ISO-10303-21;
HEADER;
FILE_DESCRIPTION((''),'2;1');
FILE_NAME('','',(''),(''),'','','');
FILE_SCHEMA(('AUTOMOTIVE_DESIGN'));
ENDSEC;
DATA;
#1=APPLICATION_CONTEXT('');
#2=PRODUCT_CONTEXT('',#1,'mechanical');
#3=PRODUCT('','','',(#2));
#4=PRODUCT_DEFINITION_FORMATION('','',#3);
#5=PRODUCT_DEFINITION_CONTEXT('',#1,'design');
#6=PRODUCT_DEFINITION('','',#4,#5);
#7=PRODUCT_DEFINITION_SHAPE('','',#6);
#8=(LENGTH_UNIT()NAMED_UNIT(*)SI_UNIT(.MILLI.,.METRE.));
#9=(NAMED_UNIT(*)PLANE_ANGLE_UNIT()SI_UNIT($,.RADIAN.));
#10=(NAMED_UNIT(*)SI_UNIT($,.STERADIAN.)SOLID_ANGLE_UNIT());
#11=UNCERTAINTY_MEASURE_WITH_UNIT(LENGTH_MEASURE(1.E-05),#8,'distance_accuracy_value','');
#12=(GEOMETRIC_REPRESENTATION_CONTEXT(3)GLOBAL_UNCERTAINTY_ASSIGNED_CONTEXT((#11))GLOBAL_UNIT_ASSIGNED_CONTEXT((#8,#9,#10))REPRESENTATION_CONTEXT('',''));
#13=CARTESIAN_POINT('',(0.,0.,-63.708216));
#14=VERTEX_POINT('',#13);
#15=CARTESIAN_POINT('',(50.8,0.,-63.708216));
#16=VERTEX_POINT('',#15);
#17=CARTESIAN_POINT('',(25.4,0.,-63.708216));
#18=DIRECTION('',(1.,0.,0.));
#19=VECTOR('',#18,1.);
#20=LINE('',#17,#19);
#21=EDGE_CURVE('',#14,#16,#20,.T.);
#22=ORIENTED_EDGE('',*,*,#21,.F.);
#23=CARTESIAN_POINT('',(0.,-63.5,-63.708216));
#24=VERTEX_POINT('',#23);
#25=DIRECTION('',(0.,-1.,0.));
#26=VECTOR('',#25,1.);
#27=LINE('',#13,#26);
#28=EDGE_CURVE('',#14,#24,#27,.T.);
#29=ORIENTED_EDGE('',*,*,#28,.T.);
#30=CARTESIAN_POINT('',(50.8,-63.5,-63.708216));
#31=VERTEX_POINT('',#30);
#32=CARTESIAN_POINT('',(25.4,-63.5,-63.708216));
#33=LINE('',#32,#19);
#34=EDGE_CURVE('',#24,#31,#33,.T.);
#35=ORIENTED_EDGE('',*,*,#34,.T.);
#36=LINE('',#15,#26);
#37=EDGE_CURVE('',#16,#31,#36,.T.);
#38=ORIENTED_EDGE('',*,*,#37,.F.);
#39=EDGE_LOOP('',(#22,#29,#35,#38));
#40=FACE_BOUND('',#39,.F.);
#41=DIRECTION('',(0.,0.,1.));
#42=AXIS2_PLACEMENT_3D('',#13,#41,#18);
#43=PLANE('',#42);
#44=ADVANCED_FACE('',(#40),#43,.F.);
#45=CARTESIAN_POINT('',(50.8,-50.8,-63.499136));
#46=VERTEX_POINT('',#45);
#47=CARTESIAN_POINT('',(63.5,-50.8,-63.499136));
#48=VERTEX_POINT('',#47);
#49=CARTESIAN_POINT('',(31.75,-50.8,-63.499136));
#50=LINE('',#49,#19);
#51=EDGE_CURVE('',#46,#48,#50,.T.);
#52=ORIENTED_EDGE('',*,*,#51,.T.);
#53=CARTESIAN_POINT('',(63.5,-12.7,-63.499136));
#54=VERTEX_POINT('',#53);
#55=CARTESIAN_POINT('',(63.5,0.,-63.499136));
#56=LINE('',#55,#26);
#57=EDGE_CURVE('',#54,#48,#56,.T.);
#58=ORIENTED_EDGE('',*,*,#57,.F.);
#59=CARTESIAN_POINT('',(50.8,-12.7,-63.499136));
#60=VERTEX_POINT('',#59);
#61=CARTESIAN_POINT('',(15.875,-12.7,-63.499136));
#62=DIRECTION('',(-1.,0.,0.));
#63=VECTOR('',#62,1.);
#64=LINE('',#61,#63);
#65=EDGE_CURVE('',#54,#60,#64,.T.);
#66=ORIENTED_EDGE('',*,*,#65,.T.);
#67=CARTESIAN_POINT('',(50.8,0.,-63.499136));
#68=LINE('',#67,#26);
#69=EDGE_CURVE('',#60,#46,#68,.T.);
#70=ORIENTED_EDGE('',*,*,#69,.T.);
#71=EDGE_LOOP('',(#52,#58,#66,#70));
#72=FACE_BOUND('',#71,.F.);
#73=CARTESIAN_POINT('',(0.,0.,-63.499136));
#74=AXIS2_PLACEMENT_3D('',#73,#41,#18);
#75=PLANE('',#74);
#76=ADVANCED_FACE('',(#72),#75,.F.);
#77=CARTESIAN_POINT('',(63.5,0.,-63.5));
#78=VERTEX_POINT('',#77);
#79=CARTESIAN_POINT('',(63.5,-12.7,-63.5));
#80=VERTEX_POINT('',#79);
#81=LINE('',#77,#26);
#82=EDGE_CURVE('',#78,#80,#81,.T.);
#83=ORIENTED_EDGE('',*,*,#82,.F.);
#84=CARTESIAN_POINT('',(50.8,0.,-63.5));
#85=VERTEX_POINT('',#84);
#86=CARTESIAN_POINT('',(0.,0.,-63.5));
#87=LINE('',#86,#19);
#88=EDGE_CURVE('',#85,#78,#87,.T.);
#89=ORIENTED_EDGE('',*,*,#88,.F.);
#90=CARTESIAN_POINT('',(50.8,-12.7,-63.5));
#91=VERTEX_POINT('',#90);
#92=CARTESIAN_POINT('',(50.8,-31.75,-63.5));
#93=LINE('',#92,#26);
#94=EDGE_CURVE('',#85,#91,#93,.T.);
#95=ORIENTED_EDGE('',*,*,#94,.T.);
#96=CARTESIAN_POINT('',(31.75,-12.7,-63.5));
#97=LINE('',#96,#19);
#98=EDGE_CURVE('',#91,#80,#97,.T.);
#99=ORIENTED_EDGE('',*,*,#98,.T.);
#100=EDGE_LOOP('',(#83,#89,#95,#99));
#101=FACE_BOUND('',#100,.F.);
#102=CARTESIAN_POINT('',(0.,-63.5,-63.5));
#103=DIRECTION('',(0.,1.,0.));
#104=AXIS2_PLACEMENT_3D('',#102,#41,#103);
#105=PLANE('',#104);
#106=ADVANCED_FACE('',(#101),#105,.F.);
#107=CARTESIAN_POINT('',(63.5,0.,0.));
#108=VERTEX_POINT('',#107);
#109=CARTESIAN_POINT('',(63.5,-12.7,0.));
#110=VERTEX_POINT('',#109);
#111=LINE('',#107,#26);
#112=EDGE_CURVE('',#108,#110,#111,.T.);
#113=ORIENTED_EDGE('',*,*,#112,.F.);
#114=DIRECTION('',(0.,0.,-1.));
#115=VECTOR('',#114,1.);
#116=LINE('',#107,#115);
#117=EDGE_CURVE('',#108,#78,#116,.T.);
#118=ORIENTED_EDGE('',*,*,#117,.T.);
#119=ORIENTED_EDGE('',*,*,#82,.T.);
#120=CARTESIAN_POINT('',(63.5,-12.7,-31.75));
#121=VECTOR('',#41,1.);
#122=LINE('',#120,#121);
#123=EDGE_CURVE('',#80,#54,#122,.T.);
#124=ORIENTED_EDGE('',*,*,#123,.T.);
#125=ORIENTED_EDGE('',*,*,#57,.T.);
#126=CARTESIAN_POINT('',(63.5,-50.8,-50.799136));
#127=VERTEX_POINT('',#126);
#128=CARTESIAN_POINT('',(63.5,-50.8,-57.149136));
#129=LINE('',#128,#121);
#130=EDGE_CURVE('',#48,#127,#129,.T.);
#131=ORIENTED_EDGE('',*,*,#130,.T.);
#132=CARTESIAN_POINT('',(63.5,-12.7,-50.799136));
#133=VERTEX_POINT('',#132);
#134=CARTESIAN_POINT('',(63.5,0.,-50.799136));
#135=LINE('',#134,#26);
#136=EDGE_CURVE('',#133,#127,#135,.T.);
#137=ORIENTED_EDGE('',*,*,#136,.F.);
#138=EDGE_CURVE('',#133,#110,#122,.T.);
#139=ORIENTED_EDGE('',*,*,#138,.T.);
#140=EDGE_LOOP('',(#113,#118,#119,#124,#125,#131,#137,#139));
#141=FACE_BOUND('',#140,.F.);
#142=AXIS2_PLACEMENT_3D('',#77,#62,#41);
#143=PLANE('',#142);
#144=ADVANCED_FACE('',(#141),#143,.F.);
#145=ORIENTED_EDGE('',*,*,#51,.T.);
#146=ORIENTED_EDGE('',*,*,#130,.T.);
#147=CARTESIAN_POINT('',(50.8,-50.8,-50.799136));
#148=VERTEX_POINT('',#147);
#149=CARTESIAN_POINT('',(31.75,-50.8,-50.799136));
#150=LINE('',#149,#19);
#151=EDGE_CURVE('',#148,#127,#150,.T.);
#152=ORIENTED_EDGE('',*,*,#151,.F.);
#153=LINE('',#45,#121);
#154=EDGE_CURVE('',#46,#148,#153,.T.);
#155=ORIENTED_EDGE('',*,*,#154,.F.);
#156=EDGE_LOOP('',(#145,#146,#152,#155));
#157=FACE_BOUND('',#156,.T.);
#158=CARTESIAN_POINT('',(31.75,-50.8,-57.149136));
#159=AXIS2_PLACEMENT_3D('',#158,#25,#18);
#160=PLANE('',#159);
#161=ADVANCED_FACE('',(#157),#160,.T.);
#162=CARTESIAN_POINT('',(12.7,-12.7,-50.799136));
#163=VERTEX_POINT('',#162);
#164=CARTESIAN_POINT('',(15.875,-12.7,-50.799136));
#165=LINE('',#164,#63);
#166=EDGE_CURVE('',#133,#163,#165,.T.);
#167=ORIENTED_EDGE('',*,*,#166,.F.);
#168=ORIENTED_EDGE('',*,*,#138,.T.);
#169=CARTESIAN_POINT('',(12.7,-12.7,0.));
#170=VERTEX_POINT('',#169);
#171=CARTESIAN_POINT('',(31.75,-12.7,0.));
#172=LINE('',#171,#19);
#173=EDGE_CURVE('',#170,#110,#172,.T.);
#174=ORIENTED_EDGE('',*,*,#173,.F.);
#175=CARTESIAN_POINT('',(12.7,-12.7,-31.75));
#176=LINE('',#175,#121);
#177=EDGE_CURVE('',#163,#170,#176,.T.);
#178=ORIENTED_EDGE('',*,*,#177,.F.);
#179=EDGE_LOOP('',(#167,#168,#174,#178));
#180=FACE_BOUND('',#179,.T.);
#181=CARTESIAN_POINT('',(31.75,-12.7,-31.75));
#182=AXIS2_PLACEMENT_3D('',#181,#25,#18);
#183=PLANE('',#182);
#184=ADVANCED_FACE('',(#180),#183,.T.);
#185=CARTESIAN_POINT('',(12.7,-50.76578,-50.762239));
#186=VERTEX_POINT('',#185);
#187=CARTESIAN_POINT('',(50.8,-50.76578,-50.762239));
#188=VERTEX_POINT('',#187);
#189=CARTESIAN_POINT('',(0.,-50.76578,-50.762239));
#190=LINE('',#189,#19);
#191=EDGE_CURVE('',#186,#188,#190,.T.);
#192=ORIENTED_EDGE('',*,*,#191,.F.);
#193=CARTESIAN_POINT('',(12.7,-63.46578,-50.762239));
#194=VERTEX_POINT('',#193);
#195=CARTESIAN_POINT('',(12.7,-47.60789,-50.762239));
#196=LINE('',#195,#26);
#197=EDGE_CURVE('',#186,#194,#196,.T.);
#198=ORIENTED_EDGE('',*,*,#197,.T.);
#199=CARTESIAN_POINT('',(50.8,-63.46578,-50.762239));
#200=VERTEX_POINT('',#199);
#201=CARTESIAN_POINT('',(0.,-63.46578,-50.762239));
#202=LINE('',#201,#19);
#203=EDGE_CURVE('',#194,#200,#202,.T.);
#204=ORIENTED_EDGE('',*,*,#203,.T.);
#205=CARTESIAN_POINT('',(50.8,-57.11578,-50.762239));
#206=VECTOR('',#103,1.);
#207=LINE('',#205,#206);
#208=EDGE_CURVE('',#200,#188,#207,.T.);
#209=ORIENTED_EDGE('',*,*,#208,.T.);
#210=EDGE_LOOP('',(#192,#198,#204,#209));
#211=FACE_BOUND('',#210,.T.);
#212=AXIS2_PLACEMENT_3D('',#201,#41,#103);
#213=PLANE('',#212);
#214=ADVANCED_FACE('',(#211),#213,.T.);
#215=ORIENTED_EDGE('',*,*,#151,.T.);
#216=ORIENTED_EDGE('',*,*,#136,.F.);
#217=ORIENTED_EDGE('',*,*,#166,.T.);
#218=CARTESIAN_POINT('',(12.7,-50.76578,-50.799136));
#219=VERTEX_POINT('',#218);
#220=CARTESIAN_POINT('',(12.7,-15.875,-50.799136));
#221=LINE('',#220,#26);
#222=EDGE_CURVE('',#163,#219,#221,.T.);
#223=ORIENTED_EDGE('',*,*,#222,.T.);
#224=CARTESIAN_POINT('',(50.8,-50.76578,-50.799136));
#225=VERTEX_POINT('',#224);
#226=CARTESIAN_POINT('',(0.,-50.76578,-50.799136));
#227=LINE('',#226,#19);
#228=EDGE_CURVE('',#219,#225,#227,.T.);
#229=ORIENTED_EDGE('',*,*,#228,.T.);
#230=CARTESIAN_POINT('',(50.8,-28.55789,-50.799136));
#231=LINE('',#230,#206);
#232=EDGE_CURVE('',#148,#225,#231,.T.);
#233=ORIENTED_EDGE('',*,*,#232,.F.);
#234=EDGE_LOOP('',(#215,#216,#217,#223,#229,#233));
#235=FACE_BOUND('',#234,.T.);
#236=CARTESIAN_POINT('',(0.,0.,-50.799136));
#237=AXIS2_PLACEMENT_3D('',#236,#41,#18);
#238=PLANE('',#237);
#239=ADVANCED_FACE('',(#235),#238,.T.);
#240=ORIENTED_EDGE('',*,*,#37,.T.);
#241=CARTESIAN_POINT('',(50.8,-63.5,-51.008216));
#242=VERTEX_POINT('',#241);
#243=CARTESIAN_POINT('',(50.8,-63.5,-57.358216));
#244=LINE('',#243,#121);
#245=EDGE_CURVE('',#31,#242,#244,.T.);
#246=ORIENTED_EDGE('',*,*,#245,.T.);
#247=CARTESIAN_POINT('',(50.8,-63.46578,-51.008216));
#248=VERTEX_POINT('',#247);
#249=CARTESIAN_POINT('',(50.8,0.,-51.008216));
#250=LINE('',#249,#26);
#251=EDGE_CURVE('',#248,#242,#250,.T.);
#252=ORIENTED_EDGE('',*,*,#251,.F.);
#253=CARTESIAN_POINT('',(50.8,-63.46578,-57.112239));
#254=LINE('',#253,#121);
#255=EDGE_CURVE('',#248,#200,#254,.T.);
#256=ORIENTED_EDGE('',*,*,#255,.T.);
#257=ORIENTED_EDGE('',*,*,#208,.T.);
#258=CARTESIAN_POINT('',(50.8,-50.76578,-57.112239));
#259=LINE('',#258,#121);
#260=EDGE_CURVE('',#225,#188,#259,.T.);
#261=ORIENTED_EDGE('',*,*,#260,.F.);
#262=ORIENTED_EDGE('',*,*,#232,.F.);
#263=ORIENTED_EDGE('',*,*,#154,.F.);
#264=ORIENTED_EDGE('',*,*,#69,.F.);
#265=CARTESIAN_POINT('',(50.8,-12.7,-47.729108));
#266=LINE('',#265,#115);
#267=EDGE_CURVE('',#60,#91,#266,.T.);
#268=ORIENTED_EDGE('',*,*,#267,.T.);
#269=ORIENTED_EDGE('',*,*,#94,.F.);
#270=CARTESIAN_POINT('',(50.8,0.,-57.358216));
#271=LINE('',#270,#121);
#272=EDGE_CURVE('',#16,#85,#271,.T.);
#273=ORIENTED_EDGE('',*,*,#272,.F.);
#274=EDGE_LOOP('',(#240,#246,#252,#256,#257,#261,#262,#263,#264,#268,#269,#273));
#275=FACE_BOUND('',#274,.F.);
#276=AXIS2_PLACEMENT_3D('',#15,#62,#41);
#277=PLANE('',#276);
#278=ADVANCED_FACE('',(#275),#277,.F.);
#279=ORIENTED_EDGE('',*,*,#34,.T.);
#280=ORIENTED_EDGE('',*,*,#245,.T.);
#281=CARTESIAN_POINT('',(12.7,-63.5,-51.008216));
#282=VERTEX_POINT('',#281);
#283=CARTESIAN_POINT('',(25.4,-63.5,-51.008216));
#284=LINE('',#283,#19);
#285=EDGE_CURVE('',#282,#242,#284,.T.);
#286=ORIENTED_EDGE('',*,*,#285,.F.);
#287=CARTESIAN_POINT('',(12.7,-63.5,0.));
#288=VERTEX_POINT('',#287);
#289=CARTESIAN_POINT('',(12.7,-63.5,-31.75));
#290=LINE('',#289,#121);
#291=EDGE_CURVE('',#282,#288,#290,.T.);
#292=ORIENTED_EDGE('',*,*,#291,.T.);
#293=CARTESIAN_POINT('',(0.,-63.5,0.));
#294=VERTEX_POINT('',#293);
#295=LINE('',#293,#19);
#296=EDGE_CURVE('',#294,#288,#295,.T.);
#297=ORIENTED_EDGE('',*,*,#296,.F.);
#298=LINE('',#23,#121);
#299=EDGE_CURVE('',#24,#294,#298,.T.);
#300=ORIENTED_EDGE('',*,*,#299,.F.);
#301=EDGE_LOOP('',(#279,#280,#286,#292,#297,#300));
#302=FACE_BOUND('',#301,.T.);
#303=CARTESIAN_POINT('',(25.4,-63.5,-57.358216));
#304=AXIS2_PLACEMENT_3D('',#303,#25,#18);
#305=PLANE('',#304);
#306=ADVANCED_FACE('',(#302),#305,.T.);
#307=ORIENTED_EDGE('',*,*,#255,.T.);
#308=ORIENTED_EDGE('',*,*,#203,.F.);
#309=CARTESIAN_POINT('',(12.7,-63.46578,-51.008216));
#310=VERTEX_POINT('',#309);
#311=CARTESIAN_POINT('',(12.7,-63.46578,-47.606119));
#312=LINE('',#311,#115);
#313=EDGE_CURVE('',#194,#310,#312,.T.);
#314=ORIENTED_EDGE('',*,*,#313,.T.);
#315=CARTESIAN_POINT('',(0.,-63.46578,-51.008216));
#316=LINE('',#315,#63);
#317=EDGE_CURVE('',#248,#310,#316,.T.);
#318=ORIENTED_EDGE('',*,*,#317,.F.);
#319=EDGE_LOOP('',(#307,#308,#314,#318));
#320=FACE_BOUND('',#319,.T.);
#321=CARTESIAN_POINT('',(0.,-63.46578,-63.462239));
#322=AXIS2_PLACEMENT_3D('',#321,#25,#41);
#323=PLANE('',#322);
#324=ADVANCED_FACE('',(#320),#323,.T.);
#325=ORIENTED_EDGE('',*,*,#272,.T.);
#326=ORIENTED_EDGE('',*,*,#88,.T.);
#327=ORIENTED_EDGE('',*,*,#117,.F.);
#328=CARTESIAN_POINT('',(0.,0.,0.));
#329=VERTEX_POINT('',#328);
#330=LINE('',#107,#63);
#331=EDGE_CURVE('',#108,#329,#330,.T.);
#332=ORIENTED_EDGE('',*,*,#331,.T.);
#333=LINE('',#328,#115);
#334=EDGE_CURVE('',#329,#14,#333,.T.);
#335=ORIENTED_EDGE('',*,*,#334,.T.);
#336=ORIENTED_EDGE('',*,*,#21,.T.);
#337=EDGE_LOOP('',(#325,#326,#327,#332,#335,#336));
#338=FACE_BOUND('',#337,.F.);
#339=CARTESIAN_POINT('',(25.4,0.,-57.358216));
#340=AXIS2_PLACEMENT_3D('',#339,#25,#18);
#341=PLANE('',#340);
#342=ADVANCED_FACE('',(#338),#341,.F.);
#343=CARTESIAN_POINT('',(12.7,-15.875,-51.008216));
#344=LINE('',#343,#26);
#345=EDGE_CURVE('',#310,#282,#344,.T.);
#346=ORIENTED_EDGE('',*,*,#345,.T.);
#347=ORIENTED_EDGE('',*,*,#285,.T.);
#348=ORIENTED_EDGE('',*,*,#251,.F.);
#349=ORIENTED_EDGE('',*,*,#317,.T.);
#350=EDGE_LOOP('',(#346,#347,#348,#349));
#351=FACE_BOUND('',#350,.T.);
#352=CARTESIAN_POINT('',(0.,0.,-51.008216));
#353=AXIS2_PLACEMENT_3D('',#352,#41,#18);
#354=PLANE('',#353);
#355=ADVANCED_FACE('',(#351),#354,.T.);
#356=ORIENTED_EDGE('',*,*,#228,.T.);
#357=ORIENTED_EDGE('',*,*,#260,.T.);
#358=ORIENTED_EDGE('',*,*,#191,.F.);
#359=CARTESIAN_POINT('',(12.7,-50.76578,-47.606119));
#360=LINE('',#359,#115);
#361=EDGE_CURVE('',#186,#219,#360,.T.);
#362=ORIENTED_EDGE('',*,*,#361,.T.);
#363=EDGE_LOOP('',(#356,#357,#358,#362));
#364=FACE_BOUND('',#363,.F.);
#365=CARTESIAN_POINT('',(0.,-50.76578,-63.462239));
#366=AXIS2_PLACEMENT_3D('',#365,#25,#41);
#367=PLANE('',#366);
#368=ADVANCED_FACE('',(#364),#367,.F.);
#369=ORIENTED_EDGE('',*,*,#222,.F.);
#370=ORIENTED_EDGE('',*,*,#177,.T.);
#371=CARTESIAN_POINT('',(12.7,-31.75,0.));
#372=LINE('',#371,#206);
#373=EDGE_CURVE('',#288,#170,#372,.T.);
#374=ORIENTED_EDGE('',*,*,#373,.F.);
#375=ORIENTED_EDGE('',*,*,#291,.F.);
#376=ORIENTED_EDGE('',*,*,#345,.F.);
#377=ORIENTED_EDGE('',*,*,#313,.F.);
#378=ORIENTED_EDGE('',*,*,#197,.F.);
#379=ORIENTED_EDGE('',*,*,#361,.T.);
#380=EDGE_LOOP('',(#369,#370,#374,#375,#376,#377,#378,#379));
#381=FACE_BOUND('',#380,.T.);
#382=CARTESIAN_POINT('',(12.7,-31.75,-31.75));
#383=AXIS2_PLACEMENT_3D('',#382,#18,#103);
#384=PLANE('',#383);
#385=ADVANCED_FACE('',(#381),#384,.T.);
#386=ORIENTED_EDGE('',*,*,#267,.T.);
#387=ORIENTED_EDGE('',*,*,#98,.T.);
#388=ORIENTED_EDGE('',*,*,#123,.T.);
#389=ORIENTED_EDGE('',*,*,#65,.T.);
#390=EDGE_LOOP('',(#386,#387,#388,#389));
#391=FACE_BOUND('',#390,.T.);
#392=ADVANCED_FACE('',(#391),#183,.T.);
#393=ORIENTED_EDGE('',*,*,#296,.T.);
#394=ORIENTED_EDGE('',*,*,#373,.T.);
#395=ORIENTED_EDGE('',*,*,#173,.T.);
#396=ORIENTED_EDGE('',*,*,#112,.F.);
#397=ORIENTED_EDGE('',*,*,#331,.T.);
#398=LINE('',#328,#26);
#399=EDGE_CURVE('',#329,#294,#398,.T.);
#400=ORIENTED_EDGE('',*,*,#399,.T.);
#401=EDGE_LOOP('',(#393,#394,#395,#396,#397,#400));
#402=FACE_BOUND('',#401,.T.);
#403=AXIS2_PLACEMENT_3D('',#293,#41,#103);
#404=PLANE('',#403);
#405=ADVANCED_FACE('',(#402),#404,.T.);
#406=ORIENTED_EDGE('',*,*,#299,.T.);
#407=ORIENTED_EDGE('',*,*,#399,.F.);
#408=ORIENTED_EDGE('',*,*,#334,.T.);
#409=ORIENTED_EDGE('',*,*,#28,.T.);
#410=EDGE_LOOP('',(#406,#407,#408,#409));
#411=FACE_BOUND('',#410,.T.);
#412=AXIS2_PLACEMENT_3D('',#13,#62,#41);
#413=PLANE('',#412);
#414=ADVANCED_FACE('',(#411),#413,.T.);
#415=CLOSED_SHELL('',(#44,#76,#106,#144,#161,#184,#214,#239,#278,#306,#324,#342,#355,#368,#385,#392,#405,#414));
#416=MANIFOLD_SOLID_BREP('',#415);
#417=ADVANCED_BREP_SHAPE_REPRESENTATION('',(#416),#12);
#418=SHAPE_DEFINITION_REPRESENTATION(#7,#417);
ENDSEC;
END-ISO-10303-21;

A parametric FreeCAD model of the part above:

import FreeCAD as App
import Part
import Sketcher

V = App.Vector
Q = App.Units.Quantity


def add_polygon(sketch, points):
    """Adds a closed chain of lines whose ends are joined by coincident constraints."""
    first, n = sketch.GeometryCount, len(points)
    for a, b in zip(points, points[1:] + points[:1]):
        sketch.addGeometry(Part.LineSegment(App.Vector(*a, 0), App.Vector(*b, 0)), False)
    for i in range(n):
        sketch.addConstraint(Sketcher.Constraint("Coincident", first + i, 2, first + (i + 1) % n, 1))

doc = App.newDocument("Part")
params = doc.addObject("Spreadsheet::Sheet", "Params")
for row, (alias, value) in enumerate([
    ("sketch1_width", "2.5 in"),
    ("pad1_length", "0.5 in"),
    ("sketch2_width", "2.5 in"),
    ("pad2_length", "0.5 in"),
    ("sketch3_width", "2.5 in"),
    ("sketch3_height", "0.5 in"),
    ("pad3_length", "2 in"),
    ("sketch4_width", "0.5 in"),
    ("pad4_length", "2 in"),
    ("sketch5_width", "2 in"),
    ("sketch5_height", "0.5 in"),
    ("pad5_length", "2.5 in"),
], start=1):
    params.set(f"A{row}", alias)
    params.set(f"B{row}", "=" + value)
    params.setAlias(f"B{row}", alias)

body = doc.addObject("PartDesign::Body", "Body")

# Sketch on XZ plane
sketch1 = body.newObject("Sketcher::SketchObject", "Sketch")
sketch1.AttachmentSupport = (doc.getObject("XZ_Plane"), [""])
sketch1.MapMode = "FlatFace"
add_polygon(sketch1, [(0, 0), (0, -64), (64, -64), (64, 0)])  # lines 0-3
sketch1.addConstraint(Sketcher.Constraint("Vertical", 0))
sketch1.addConstraint(Sketcher.Constraint("Horizontal", 1))
sketch1.addConstraint(Sketcher.Constraint("Vertical", 2))
sketch1.addConstraint(Sketcher.Constraint("Horizontal", 3))
sketch1.addConstraint(Sketcher.Constraint("Coincident", 3, 2, -1, 1))
sketch1.addConstraint(Sketcher.Constraint("Equal", 3, 0))
sketch1.addConstraint(Sketcher.Constraint("DistanceX", 1, 1, 1, 2, Q("2.5 in")))
sketch1.setExpression("Constraints[10]", "Params.sketch1_width")
pad1 = body.newObject("PartDesign::Pad", "Pad")
pad1.Profile = sketch1
pad1.setExpression("Length", "Params.pad1_length")

# Sketch on YZ plane
sketch2 = body.newObject("Sketcher::SketchObject", "Sketch001")
sketch2.AttachmentSupport = (doc.getObject("YZ_Plane"), [""])
sketch2.MapMode = "FlatFace"
add_polygon(sketch2, [(-64, 0), (-64, -64), (0, -64), (0, 0)])  # lines 0-3
sketch2.addConstraint(Sketcher.Constraint("Vertical", 0))
sketch2.addConstraint(Sketcher.Constraint("Horizontal", 1))
sketch2.addConstraint(Sketcher.Constraint("Vertical", 2))
sketch2.addConstraint(Sketcher.Constraint("Horizontal", 3))
sketch2.addConstraint(Sketcher.Constraint("Coincident", 2, 2, -1, 1))
sketch2.addConstraint(Sketcher.Constraint("Equal", 3, 0))
sketch2.addConstraint(Sketcher.Constraint("DistanceX", 1, 1, 1, 2, Q("2.5 in")))
sketch2.setExpression("Constraints[10]", "Params.sketch2_width")
pad2 = body.newObject("PartDesign::Pad", "Pad001")
pad2.Profile = sketch2
pad2.setExpression("Length", "Params.pad2_length")

# Sketch on XZ plane
sketch3 = body.newObject("Sketcher::SketchObject", "Sketch002")
sketch3.AttachmentSupport = (doc.getObject("XZ_Plane"), [""])
sketch3.MapMode = "FlatFace"
add_polygon(sketch3, [(0, -51), (0, -63), (64, -63), (64, -51)])  # lines 0-3
sketch3.addConstraint(Sketcher.Constraint("Vertical", 0))
sketch3.addConstraint(Sketcher.Constraint("Horizontal", 1))
sketch3.addConstraint(Sketcher.Constraint("Vertical", 2))
sketch3.addConstraint(Sketcher.Constraint("Horizontal", 3))
sketch3.addConstraint(Sketcher.Constraint("PointOnObject", 0, 2, -2))
sketch3.addConstraint(Sketcher.Constraint("DistanceX", 1, 1, 1, 2, Q("2.5 in")))
sketch3.addConstraint(Sketcher.Constraint("DistanceY", 0, 2, 0, 1, Q("0.5 in")))
sketch3.addConstraint(Sketcher.Constraint("DistanceY", 0, 2, -1, 1, 63.499136))
sketch3.setExpression("Constraints[9]", "Params.sketch3_width")
sketch3.setExpression("Constraints[10]", "Params.sketch3_height")
pad3 = body.newObject("PartDesign::Pad", "Pad002")
pad3.Profile = sketch3
pad3.setExpression("Length", "Params.pad3_length")

# Sketch on YZ plane
sketch4 = body.newObject("Sketcher::SketchObject", "Sketch003")
sketch4.AttachmentSupport = (doc.getObject("YZ_Plane"), [""])
sketch4.MapMode = "FlatFace"
add_polygon(sketch4, [(-63, -51), (-63, -63), (-51, -63), (-51, -51)])  # lines 0-3
sketch4.addConstraint(Sketcher.Constraint("Vertical", 0))
sketch4.addConstraint(Sketcher.Constraint("Horizontal", 1))
sketch4.addConstraint(Sketcher.Constraint("Vertical", 2))
sketch4.addConstraint(Sketcher.Constraint("Horizontal", 3))
sketch4.addConstraint(Sketcher.Constraint("Equal", 3, 0))
sketch4.addConstraint(Sketcher.Constraint("DistanceX", 1, 1, 1, 2, Q("0.5 in")))
sketch4.addConstraint(Sketcher.Constraint("DistanceX", 0, 2, -1, 1, 63.46578))
sketch4.addConstraint(Sketcher.Constraint("DistanceY", 0, 2, -1, 1, 63.462239))
sketch4.setExpression("Constraints[9]", "Params.sketch4_width")
pad4 = body.newObject("PartDesign::Pad", "Pad003")
pad4.Profile = sketch4
pad4.setExpression("Length", "Params.pad4_length")

# Sketch on XZ plane
sketch5 = body.newObject("Sketcher::SketchObject", "Sketch004")
sketch5.AttachmentSupport = (doc.getObject("XZ_Plane"), [""])
sketch5.MapMode = "FlatFace"
add_polygon(sketch5, [(0, -51), (0, -64), (51, -64), (51, -51)])  # lines 0-3
sketch5.addConstraint(Sketcher.Constraint("Vertical", 0))
sketch5.addConstraint(Sketcher.Constraint("Horizontal", 1))
sketch5.addConstraint(Sketcher.Constraint("Vertical", 2))
sketch5.addConstraint(Sketcher.Constraint("Horizontal", 3))
sketch5.addConstraint(Sketcher.Constraint("PointOnObject", 0, 2, -2))
sketch5.addConstraint(Sketcher.Constraint("DistanceX", 1, 1, 1, 2, Q("2 in")))
sketch5.addConstraint(Sketcher.Constraint("DistanceY", 0, 2, 0, 1, Q("0.5 in")))
sketch5.addConstraint(Sketcher.Constraint("DistanceY", 0, 2, -1, 1, 63.708216))
sketch5.setExpression("Constraints[9]", "Params.sketch5_width")
sketch5.setExpression("Constraints[10]", "Params.sketch5_height")
pad5 = body.newObject("PartDesign::Pad", "Pad004")
pad5.Profile = sketch5
pad5.setExpression("Length", "Params.pad5_length")

doc.recompute()
